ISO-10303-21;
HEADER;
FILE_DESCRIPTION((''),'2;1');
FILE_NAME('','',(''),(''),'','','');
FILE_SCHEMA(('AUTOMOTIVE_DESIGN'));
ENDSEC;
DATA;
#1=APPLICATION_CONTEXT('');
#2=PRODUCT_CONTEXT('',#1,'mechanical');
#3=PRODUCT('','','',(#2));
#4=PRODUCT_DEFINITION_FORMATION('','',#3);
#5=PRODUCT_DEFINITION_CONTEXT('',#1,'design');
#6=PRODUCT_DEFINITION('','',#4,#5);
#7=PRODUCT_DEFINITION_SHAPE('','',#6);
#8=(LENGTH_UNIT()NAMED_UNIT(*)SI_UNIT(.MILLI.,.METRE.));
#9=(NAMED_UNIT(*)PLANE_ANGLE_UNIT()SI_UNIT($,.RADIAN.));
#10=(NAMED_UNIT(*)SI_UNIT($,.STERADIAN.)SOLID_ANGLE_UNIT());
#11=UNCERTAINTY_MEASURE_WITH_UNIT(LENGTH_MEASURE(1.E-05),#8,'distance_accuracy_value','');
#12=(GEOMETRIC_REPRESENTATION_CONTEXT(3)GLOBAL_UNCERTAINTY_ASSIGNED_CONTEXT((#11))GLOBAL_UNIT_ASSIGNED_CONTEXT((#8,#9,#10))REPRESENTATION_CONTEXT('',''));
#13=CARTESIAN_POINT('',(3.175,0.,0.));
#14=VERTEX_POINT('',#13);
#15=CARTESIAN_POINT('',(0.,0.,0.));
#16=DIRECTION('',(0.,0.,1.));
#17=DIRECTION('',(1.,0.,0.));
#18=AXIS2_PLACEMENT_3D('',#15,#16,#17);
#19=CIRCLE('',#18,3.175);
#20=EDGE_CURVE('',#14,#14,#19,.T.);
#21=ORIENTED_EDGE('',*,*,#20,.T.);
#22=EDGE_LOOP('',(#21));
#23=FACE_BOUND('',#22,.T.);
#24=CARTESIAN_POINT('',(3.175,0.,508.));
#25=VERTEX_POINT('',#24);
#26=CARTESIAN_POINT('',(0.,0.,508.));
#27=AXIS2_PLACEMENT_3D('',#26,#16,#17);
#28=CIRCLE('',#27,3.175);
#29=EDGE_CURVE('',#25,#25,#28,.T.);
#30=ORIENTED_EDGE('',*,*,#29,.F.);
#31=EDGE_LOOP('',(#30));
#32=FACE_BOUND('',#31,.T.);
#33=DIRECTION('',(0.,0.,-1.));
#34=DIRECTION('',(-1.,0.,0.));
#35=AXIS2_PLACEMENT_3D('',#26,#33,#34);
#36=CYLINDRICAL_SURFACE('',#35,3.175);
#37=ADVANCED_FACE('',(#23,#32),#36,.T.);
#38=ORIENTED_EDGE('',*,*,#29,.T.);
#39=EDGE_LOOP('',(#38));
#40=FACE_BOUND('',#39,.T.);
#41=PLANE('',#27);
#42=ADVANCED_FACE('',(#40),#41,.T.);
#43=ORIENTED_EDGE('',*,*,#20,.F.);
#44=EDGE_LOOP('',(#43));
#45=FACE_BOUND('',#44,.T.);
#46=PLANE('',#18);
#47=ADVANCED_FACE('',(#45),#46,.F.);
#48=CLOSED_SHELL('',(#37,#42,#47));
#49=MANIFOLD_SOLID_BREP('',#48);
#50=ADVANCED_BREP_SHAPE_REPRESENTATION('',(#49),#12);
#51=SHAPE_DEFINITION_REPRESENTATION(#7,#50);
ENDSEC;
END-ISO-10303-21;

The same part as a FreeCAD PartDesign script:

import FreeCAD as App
import Part
import Sketcher
from FreeCAD import Vector
Q = App.Units.Quantity

doc = App.newDocument("Part")
body = doc.addObject("PartDesign::Body", "Body")

# Sketch on XY plane
sketch1 = body.newObject("Sketcher::SketchObject", "Sketch")
sketch1.AttachmentSupport = (doc.getObject("XY_Plane"), [""])
sketch1.MapMode = "FlatFace"
sketch1.addGeometry(Part.Circle(Vector(0, 0, 0), Vector(0, 0, 1), 3.2), False)
sketch1.addConstraint(Sketcher.Constraint("Coincident", 0, 3, -1, 1))
sketch1.addConstraint(Sketcher.Constraint("Diameter", 0, Q("0.25 in")))
pad1 = body.newObject("PartDesign::Pad", "Pad")
pad1.Profile = sketch1
pad1.Length = Q("20 in")

doc.recompute()
